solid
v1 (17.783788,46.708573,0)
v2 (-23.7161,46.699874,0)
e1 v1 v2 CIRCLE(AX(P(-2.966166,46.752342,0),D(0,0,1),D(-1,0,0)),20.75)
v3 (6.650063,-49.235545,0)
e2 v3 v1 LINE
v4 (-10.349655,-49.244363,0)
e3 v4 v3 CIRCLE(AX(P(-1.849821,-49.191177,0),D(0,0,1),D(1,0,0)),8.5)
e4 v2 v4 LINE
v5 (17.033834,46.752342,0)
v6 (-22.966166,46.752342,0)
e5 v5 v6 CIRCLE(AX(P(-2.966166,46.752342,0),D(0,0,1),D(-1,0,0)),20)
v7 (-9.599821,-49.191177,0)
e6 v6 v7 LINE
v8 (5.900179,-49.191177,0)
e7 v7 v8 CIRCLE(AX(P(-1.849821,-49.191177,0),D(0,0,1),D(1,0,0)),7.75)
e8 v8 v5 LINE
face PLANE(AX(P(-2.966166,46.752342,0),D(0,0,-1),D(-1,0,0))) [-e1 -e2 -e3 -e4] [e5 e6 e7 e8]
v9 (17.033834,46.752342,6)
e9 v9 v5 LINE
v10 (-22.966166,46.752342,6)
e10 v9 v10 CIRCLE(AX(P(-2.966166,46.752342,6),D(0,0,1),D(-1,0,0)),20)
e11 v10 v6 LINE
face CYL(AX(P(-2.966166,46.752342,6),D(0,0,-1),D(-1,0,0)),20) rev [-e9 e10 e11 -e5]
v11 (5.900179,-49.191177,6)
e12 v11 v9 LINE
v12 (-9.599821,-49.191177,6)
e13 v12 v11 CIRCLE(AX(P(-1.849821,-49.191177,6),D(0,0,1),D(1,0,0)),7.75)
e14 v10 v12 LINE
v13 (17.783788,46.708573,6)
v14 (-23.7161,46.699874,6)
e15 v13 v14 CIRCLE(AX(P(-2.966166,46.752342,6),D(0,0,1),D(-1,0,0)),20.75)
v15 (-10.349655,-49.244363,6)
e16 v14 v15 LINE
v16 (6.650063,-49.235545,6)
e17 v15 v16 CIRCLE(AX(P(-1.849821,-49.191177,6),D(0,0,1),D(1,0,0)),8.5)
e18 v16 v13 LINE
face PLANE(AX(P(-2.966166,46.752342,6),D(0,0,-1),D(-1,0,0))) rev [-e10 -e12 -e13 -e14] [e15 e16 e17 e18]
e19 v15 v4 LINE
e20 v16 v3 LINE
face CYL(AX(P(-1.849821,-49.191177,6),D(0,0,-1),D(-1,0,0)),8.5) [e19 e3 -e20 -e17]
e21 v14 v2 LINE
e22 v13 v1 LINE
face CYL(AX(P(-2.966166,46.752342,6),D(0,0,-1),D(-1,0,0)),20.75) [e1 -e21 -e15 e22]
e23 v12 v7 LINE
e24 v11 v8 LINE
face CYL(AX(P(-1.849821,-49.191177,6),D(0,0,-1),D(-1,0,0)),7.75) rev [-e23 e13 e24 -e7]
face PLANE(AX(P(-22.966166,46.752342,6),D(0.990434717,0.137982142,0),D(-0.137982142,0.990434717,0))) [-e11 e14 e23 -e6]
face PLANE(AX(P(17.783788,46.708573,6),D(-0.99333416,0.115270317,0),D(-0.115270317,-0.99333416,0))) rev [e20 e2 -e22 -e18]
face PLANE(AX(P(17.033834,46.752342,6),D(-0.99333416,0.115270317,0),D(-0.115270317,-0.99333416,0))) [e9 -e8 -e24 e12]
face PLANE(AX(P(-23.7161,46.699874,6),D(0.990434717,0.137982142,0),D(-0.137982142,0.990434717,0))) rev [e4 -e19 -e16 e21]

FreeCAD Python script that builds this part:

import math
import FreeCAD as App
import Part
import Sketcher
from FreeCAD import Vector

doc = App.newDocument("Part")
body = doc.addObject("PartDesign::Body", "Body")

sketch1 = body.newObject("Sketcher::SketchObject", "Sketch")
sketch1.AttachmentSupport = (doc.getObject("XY_Plane"), [""])
sketch1.MapMode = "FlatFace"
sketch1.addGeometry([
    Part.LineSegment(Vector(-23.7161, 46.699874, 0), Vector(-10.349655, -49.244363, 0)),
    Part.ArcOfCircle(Part.Circle(Vector(-1.849821, -49.191177, 0), Vector(0, 0, 1), 8.5), math.radians(-179.641485), math.radians(-0.299077)),
    Part.LineSegment(Vector(6.650063, -49.235545, 0), Vector(17.783788, 46.708573, 0)),
    Part.ArcOfCircle(Part.Circle(Vector(-2.966166, 46.752342, 0), Vector(0, 0, 1), 20.75), math.radians(-0.120856), math.radians(180.144877)),
    Part.LineSegment(Vector(-9.599821, -49.191177, 0), Vector(-22.966166, 46.752342, 0)),
    Part.ArcOfCircle(Part.Circle(Vector(-2.966166, 46.752342, 0), Vector(0, 0, 1), 20), math.radians(0), math.radians(180)),
    Part.LineSegment(Vector(17.033834, 46.752342, 0), Vector(5.900179, -49.191177, 0)),
    Part.ArcOfCircle(Part.Circle(Vector(-1.849821, -49.191177, 0), Vector(0, 0, 1), 7.75), math.radians(180), math.radians(360)),
], False)
sketch1.addConstraint([
    Sketcher.Constraint("Coincident", 0, 2, 1, 1),
    Sketcher.Constraint("Coincident", 1, 2, 2, 1),
    Sketcher.Constraint("Coincident", 2, 2, 3, 1),
    Sketcher.Constraint("Coincident", 3, 2, 0, 1),
    Sketcher.Constraint("Coincident", 4, 2, 5, 2),
    Sketcher.Constraint("Coincident", 5, 1, 6, 1),
    Sketcher.Constraint("Coincident", 6, 2, 7, 2),
    Sketcher.Constraint("Coincident", 7, 1, 4, 1),
    Sketcher.Constraint("Coincident", 5, 3, 3, 3),
    Sketcher.Constraint("Coincident", 7, 3, 1, 3),
    Sketcher.Constraint("Parallel", 0, 4),
    Sketcher.Constraint("Parallel", 2, 6),
    Sketcher.Constraint("Horizontal", 5, 3, 4, 2),
    Sketcher.Constraint("Horizontal", 4, 2, 5, 1),
    Sketcher.Constraint("Horizontal", 7, 3, 6, 2),
    Sketcher.Constraint("Horizontal", 6, 2, 7, 1),
    Sketcher.Constraint("Radius", 5, 20.0),
    Sketcher.Constraint("Radius", 1, 8.5),
    Sketcher.Constraint("Radius", 3, 20.75),
    Sketcher.Constraint("Radius", 7, 7.75),
    Sketcher.Constraint("DistanceX", 3, 2, -1, 1, 23.7161),
    Sketcher.Constraint("DistanceY", 3, 2, 2, 2, 0.008699),
    Sketcher.Constraint("Distance", 2, 96.587959),
    Sketcher.Constraint("Distance", 4, 96.870109),
    Sketcher.Constraint("DistanceX", 1, 3, -1, 1, 1.849821),
    Sketcher.Constraint("DistanceY", 1, 3, -1, 1, 49.191177),
])
pad1 = body.newObject("PartDesign::Pad", "Pad")
pad1.Profile = sketch1
pad1.Length = 6

doc.recompute()
